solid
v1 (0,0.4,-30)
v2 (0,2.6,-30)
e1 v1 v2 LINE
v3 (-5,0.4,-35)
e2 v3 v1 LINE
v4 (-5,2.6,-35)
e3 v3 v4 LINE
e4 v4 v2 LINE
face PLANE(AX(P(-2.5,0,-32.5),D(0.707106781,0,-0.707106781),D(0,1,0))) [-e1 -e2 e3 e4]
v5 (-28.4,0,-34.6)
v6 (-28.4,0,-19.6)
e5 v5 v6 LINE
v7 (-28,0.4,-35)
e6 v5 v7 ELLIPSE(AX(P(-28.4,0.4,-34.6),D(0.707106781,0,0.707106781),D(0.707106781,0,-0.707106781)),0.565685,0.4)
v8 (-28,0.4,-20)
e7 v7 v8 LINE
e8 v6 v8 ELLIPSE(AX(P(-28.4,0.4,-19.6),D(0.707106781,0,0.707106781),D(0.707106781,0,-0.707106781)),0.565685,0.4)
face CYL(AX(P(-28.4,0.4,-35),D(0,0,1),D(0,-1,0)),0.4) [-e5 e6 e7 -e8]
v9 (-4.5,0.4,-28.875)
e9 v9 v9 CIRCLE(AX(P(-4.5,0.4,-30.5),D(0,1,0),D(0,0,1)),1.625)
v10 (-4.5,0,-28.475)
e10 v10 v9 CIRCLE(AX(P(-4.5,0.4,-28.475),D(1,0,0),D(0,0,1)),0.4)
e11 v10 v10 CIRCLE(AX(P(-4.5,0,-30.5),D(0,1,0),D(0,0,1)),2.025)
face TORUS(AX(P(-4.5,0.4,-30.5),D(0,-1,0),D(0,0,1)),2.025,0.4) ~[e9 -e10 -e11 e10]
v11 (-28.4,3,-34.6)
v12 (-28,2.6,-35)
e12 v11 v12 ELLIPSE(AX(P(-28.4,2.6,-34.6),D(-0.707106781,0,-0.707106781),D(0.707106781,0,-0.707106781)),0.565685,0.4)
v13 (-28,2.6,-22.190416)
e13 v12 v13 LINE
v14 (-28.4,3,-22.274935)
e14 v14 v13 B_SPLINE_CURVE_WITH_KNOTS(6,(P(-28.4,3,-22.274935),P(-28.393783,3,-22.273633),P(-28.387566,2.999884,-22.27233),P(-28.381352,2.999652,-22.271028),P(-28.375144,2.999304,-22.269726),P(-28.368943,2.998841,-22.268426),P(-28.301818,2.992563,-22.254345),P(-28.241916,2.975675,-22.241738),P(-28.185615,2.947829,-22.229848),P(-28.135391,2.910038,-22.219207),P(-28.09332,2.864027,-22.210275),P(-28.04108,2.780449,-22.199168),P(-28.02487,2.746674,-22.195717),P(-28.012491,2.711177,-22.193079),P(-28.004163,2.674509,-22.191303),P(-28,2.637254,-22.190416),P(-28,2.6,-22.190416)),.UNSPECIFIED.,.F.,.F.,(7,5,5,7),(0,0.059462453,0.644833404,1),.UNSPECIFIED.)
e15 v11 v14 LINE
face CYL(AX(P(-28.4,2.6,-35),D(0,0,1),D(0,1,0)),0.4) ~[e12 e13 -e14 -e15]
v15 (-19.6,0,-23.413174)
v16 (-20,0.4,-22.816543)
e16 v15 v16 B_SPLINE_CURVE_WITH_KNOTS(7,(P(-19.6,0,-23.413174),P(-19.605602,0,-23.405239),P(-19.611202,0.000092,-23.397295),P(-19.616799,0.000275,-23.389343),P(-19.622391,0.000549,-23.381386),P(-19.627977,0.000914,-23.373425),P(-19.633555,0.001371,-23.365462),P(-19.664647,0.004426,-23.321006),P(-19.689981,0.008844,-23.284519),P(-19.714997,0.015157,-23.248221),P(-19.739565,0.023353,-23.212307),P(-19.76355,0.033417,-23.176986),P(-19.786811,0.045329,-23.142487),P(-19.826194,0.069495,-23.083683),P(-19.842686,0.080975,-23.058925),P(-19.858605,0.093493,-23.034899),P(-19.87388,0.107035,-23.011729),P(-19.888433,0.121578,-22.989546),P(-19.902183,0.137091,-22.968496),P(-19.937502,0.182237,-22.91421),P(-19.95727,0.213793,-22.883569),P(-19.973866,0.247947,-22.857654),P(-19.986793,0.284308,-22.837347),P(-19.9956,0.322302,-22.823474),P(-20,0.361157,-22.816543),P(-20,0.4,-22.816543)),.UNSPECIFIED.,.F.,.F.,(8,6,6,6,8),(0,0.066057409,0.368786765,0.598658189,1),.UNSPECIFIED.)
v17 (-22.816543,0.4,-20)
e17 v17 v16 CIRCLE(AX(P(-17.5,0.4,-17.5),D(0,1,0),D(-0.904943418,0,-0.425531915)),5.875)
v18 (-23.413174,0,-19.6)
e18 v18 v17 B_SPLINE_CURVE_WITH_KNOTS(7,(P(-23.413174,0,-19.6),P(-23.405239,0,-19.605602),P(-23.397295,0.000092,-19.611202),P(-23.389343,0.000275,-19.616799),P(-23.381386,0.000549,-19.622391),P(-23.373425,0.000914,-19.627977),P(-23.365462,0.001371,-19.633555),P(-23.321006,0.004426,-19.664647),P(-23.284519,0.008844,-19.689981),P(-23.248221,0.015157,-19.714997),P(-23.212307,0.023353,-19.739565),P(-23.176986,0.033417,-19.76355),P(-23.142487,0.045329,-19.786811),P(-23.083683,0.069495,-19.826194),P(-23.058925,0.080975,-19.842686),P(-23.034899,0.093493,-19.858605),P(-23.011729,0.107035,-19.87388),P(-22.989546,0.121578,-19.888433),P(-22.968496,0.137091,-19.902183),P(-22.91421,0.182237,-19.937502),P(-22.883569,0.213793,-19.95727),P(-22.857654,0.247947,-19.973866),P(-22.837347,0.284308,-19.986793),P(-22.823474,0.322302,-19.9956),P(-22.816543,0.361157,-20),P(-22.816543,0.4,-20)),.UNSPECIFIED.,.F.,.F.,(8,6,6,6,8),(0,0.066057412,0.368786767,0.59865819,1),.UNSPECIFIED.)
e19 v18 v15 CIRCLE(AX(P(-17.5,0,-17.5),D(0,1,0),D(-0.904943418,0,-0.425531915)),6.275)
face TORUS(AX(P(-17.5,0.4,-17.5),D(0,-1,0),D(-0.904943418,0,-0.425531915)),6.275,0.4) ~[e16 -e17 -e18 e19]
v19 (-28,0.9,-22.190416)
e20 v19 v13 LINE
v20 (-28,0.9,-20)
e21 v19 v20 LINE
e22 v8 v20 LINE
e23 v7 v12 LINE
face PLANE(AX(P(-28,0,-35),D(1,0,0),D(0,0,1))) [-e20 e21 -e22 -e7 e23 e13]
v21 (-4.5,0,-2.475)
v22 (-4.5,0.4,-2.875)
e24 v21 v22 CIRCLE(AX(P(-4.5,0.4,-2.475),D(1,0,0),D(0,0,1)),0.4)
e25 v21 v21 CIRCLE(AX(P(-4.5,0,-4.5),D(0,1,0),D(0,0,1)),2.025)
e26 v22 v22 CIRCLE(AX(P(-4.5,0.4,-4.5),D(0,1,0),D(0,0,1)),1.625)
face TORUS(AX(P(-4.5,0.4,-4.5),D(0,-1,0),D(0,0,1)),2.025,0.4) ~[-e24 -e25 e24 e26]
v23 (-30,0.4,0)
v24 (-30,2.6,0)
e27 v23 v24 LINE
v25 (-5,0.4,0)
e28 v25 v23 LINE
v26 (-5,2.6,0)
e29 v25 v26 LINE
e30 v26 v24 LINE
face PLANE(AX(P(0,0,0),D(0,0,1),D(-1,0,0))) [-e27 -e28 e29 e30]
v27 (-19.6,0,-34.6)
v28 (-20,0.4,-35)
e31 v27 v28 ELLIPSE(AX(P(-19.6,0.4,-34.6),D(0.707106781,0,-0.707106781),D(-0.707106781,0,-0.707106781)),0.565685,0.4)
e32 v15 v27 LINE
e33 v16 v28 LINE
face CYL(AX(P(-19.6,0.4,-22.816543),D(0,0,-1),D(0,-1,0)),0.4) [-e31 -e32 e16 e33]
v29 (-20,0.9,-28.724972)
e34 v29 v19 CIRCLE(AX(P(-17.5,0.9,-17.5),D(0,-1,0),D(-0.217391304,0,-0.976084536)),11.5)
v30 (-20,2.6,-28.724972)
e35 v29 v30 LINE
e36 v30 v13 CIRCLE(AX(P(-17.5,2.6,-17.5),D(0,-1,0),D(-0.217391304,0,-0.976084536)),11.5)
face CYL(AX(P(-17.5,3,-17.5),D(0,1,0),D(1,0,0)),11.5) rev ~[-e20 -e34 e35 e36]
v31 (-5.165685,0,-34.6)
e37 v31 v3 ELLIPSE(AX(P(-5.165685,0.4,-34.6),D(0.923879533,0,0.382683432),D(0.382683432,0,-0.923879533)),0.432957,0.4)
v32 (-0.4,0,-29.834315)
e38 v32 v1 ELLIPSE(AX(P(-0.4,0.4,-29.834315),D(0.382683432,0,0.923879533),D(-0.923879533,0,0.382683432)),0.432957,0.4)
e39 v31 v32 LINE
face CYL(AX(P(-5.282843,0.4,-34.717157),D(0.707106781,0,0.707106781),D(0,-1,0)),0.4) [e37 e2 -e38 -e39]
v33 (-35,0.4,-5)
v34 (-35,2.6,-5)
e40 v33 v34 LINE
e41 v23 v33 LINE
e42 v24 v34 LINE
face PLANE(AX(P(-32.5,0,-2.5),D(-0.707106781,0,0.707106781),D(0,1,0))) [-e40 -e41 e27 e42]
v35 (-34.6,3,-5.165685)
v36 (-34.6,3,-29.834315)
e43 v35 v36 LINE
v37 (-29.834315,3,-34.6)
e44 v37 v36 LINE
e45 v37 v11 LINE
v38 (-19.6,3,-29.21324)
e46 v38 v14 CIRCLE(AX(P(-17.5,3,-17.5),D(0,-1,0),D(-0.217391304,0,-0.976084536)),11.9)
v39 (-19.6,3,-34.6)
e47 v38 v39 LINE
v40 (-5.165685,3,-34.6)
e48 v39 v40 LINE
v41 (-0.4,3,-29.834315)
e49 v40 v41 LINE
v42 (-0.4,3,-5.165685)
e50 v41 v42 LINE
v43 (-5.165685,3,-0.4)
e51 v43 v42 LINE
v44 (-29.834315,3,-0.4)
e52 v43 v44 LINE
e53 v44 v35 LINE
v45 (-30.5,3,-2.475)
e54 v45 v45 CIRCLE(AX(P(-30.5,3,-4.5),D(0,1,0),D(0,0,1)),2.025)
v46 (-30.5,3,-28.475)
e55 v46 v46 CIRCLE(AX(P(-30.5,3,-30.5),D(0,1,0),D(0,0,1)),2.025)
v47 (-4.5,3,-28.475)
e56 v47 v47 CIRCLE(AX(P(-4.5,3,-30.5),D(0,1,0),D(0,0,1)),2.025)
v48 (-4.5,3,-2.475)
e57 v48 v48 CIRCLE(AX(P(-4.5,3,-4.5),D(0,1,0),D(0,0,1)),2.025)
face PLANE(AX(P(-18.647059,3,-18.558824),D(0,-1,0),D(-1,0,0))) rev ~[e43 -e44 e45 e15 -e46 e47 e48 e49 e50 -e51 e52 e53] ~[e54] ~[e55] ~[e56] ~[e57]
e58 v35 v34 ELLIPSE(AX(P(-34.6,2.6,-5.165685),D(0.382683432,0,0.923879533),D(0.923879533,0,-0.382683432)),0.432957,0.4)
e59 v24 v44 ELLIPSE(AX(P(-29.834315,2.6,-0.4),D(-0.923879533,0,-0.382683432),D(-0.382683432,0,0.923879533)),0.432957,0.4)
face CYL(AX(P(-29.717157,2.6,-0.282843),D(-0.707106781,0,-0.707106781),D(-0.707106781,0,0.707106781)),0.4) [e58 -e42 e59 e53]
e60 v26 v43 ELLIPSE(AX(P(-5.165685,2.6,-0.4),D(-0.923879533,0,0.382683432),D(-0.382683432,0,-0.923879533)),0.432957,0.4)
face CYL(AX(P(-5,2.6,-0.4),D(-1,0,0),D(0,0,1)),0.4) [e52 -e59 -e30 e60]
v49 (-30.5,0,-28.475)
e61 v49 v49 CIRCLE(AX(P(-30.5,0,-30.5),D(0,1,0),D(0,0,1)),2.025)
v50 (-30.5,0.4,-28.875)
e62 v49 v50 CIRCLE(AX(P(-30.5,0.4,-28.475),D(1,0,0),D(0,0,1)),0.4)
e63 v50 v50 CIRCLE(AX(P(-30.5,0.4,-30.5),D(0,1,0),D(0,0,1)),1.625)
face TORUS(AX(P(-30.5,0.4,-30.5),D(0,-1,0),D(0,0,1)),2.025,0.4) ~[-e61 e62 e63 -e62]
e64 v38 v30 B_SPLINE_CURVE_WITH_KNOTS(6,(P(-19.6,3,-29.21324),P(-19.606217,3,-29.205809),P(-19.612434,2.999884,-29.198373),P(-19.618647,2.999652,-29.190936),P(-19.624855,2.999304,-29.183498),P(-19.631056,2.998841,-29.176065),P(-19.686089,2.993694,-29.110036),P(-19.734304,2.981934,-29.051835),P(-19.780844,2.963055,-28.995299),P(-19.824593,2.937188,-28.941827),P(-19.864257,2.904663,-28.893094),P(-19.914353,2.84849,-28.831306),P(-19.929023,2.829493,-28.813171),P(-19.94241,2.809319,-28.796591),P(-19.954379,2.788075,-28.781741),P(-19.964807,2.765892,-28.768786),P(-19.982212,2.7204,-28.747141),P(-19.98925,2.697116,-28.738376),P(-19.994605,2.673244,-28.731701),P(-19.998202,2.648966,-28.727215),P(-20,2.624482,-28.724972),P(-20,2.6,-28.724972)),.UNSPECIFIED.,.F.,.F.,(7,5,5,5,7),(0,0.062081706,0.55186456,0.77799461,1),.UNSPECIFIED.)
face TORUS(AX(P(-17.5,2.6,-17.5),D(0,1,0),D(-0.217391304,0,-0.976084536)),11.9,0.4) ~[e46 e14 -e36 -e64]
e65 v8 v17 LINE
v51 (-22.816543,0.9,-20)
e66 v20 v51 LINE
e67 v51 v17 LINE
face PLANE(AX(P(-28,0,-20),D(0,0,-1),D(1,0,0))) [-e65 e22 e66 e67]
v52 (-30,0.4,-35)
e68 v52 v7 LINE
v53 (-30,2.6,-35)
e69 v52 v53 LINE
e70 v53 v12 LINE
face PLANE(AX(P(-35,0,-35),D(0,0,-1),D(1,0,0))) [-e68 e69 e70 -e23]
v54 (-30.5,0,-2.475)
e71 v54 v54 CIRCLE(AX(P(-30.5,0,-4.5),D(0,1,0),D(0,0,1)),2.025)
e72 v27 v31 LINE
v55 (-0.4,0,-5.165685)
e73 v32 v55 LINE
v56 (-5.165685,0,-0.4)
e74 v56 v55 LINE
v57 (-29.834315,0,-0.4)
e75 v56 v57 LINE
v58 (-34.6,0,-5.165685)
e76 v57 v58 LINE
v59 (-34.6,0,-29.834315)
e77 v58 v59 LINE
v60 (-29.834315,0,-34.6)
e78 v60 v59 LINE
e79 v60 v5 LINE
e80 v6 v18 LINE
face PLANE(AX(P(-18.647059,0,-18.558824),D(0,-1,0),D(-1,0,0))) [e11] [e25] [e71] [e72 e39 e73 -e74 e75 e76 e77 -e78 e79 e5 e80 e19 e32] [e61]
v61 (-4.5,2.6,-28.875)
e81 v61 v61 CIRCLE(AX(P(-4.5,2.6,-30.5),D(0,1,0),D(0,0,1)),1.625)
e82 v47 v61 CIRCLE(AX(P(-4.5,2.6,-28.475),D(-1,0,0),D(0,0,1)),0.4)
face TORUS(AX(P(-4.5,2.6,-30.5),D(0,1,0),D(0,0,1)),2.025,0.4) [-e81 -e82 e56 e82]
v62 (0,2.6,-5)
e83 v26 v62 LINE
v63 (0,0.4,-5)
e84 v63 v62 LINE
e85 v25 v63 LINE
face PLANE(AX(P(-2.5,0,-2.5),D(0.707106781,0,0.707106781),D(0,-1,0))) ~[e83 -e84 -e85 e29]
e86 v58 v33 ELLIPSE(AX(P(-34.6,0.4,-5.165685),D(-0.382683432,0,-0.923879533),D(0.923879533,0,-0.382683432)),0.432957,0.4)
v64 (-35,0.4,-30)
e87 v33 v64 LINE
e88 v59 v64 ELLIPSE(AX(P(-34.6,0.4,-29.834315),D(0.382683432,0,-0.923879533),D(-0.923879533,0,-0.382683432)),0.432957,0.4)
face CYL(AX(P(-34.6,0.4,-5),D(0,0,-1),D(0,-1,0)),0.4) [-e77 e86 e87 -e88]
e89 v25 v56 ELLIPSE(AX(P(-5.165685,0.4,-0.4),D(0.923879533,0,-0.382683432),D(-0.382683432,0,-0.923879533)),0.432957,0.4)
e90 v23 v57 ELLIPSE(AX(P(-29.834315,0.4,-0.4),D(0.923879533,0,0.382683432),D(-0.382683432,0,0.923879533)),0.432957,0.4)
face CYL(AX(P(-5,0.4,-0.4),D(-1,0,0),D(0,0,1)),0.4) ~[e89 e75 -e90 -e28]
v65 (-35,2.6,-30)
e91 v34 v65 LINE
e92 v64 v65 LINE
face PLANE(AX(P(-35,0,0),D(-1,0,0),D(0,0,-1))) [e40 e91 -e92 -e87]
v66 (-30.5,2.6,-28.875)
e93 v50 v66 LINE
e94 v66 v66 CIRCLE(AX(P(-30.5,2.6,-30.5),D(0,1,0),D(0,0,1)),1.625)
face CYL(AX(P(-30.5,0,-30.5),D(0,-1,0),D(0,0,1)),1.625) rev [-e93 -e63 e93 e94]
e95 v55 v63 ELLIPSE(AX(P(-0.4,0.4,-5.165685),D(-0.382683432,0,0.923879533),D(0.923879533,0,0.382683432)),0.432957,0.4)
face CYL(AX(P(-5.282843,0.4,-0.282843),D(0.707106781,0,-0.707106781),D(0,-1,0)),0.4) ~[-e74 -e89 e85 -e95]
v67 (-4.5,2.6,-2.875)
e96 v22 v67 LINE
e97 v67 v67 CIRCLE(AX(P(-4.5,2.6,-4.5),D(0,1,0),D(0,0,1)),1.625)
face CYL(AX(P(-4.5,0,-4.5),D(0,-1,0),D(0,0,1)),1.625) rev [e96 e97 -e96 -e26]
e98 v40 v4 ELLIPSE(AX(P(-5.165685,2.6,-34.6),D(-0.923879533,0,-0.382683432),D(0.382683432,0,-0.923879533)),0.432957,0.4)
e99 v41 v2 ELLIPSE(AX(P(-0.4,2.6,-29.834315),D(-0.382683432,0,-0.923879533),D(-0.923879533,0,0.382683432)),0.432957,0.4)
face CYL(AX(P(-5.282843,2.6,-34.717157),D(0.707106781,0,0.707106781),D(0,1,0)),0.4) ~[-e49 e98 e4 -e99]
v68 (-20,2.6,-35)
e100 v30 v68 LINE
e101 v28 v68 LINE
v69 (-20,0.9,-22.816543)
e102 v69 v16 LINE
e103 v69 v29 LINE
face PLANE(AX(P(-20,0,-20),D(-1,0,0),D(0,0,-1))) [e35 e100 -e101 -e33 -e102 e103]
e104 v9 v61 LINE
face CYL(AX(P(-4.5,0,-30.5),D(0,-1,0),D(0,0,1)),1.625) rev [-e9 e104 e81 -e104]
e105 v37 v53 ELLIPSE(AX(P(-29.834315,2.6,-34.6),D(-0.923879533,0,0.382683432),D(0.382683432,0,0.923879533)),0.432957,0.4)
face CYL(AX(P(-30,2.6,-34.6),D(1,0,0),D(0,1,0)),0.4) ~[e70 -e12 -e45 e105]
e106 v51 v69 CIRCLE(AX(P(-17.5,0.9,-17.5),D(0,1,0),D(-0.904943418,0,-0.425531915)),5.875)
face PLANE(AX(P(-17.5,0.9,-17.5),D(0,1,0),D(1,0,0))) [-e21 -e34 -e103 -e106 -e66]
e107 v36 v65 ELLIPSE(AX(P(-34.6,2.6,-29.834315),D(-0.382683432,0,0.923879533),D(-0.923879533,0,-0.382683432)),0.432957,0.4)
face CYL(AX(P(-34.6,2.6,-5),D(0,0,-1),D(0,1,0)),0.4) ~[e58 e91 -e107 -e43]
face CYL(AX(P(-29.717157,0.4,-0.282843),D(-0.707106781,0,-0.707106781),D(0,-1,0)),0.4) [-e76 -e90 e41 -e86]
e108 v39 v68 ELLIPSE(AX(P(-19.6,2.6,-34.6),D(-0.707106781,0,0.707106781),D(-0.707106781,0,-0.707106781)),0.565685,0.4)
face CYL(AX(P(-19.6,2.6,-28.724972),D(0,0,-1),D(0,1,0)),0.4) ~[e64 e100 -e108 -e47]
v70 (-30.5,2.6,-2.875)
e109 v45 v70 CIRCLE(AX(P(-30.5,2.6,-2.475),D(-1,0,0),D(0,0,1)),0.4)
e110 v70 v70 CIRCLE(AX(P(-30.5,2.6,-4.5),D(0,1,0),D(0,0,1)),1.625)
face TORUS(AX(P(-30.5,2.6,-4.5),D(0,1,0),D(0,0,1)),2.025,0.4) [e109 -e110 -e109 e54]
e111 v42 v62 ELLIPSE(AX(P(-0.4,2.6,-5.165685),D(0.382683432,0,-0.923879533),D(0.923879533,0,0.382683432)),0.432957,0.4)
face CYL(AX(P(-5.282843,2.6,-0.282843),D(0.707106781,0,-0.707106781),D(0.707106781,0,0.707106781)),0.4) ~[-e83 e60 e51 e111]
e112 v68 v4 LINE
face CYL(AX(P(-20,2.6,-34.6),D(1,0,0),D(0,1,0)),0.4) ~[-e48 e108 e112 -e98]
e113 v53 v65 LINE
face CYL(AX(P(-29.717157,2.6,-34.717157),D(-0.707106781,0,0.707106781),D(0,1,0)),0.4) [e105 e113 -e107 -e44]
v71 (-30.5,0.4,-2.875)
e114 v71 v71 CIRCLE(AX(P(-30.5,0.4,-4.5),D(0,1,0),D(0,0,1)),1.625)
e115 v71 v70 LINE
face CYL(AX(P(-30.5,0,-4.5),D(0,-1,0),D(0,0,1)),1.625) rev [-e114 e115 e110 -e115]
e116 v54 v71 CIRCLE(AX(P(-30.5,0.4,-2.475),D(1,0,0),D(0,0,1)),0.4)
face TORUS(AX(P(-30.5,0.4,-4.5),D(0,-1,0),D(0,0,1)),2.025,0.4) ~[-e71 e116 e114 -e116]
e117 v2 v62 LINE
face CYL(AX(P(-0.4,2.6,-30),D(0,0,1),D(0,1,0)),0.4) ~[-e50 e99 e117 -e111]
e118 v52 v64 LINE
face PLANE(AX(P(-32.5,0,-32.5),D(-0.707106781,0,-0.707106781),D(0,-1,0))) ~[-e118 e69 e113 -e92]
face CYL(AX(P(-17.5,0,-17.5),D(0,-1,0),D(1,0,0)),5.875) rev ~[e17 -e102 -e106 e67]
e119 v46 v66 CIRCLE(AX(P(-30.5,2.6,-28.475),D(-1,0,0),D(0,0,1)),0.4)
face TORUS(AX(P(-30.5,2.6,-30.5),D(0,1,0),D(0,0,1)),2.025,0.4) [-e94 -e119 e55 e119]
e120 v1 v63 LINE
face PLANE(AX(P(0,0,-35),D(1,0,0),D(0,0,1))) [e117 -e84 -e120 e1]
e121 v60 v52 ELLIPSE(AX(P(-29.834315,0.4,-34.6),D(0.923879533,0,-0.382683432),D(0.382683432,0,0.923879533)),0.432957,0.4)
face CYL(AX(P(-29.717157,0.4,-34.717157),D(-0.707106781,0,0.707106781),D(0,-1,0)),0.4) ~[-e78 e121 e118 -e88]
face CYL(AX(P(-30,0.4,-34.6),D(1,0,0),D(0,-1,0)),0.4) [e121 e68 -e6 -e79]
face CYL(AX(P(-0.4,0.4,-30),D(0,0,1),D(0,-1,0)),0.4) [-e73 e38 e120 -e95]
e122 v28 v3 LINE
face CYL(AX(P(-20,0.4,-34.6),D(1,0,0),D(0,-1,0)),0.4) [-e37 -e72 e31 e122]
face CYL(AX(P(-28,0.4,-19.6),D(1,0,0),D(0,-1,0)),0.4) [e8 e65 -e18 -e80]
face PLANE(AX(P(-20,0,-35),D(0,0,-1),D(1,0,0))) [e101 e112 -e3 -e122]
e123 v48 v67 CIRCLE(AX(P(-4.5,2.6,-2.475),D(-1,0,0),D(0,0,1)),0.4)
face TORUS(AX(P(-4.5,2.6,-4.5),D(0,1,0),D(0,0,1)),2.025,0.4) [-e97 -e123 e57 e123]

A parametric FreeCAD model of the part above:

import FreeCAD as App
import Part
import Sketcher


def edges_at(feature, points):
    """Names of the edges that pass closest to the given points."""
    edges = feature.Shape.Edges
    near = lambda p: min(range(len(edges)), key=lambda i: edges[i].distToShape(Part.Vertex(*p))[0])
    return sorted({f"Edge{near(p) + 1}" for p in points})

doc = App.newDocument("Part")
params = doc.addObject("Spreadsheet::Sheet", "Params")
for row, (alias, value) in enumerate([
    ("sketch1_diameter", "3.25 mm"),
    ("sketch1_width", "35 mm"),
    ("sketch1_width2", "20 mm"),
    ("sketch1_width3", "8 mm"),
    ("sketch1_height", "15 mm"),
    ("pad1_length", "3 mm"),
    ("sketch2_diameter", "23 mm"),
    ("pocket1_length", "2.1 mm"),
    ("sketch3_diameter", "11.75 mm"),
    ("chamfer_size", "5 mm"),
    ("fillet_radius", "0.4 mm"),
], start=1):
    params.set(f"A{row}", alias)
    params.set(f"B{row}", "=" + value)
    params.setAlias(f"B{row}", alias)

body = doc.addObject("PartDesign::Body", "Body")

sketch1 = body.newObject("Sketcher::SketchObject", "Sketch")
sketch1.AttachmentSupport = (doc.getObject("XZ_Plane"), [""])
sketch1.MapMode = "FlatFace"
sketch1.addGeometry([
    Part.LineSegment(App.Vector(-35, 0, 0), App.Vector(0, 0, 0)),
    Part.LineSegment(App.Vector(0, 0, 0), App.Vector(0, -35, 0)),
    Part.LineSegment(App.Vector(0, -35, 0), App.Vector(-20, -35, 0)),
    Part.LineSegment(App.Vector(-20, -35, 0), App.Vector(-20, -20, 0)),
    Part.LineSegment(App.Vector(-20, -20, 0), App.Vector(-28, -20, 0)),
    Part.LineSegment(App.Vector(-28, -20, 0), App.Vector(-28, -35, 0)),
    Part.LineSegment(App.Vector(-28, -35, 0), App.Vector(-35, -35, 0)),
    Part.LineSegment(App.Vector(-35, -35, 0), App.Vector(-35, 0, 0)),
    Part.Circle(App.Vector(-4.5, -4.5, 0), App.Vector(0, 0, 1), 1.6),
    Part.Circle(App.Vector(-30.5, -4.5, 0), App.Vector(0, 0, 1), 1.6),
    Part.Circle(App.Vector(-4.5, -30.5, 0), App.Vector(0, 0, 1), 1.6),
    Part.Circle(App.Vector(-30.5, -30.5, 0), App.Vector(0, 0, 1), 1.6),
], False)
sketch1.addConstraint([
    Sketcher.Constraint("Coincident", 0, 2, 1, 1),
    Sketcher.Constraint("Coincident", 1, 2, 2, 1),
    Sketcher.Constraint("Coincident", 2, 2, 3, 1),
    Sketcher.Constraint("Coincident", 3, 2, 4, 1),
    Sketcher.Constraint("Coincident", 4, 2, 5, 1),
    Sketcher.Constraint("Coincident", 5, 2, 6, 1),
    Sketcher.Constraint("Coincident", 6, 2, 7, 1),
    Sketcher.Constraint("Coincident", 7, 2, 0, 1),
    Sketcher.Constraint("Horizontal", 0),
    Sketcher.Constraint("Vertical", 1),
    Sketcher.Constraint("Horizontal", 2),
    Sketcher.Constraint("Vertical", 3),
    Sketcher.Constraint("Horizontal", 4),
    Sketcher.Constraint("Vertical", 5),
    Sketcher.Constraint("Horizontal", 6),
    Sketcher.Constraint("Vertical", 7),
    Sketcher.Constraint("Coincident", 0, 2, -1, 1),
    Sketcher.Constraint("Equal", 8, 9),
    Sketcher.Constraint("Equal", 9, 10),
    Sketcher.Constraint("Equal", 10, 11),
    Sketcher.Constraint("Horizontal", 8, 3, 9, 3),
    Sketcher.Constraint("Horizontal", 10, 3, 11, 3),
    Sketcher.Constraint("Horizontal", 2, 2, 5, 2),
    Sketcher.Constraint("Vertical", 8, 3, 10, 3),
    Sketcher.Constraint("Vertical", 9, 3, 11, 3),
    Sketcher.Constraint("Equal", 0, 1),
    Sketcher.Constraint("Diameter", 8, 3.25),
    Sketcher.Constraint("DistanceX", 0, 1, 0, 2, 35.0),
    Sketcher.Constraint("DistanceX", 2, 2, 2, 1, 20.0),
    Sketcher.Constraint("DistanceX", 4, 2, 4, 1, 8.0),
    Sketcher.Constraint("DistanceY", 3, 1, 3, 2, 15.0),
    Sketcher.Constraint("DistanceX", 9, 3, 8, 3, 26.0),
    Sketcher.Constraint("DistanceY", 10, 3, 8, 3, 26.0),
    Sketcher.Constraint("DistanceX", 8, 3, -1, 1, 4.5),
    Sketcher.Constraint("DistanceY", 8, 3, -1, 1, 4.5),
])
sketch1.setExpression("Constraints[26]", "Params.sketch1_diameter")
sketch1.setExpression("Constraints[27]", "Params.sketch1_width")
sketch1.setExpression("Constraints[28]", "Params.sketch1_width2")
sketch1.setExpression("Constraints[29]", "Params.sketch1_width3")
sketch1.setExpression("Constraints[30]", "Params.sketch1_height")
pad1 = body.newObject("PartDesign::Pad", "Pad")
pad1.Profile = sketch1
pad1.setExpression("Length", "Params.pad1_length")
pad1.Reversed = True

sketch2 = body.newObject("Sketcher::SketchObject", "Sketch001")
sketch2.AttachmentSupport = (doc.getObject("XZ_Plane"), [""])
sketch2.MapMode = "FlatFace"
sketch2.AttachmentOffset = App.Placement(App.Vector(0, 0, -3), App.Rotation())
sketch2.addGeometry(Part.Circle(App.Vector(-18, -18, 0), App.Vector(0, 0, 1), 12), False)
sketch2.addConstraint([
    Sketcher.Constraint("Diameter", 0, 23.0),
    Sketcher.Constraint("DistanceX", 0, 3, -1, 1, 17.5),
    Sketcher.Constraint("DistanceY", 0, 3, -1, 1, 17.5),
])
sketch2.setExpression("Constraints[0]", "Params.sketch2_diameter")
pocket1 = body.newObject("PartDesign::Pocket", "Pocket")
pocket1.Profile = sketch2
pocket1.setExpression("Length", "Params.pocket1_length")
pocket1.Reversed = True

sketch3 = body.newObject("Sketcher::SketchObject", "Sketch002")
sketch3.AttachmentSupport = (doc.getObject("XZ_Plane"), [""])
sketch3.MapMode = "FlatFace"
sketch3.addGeometry(Part.Circle(App.Vector(-18, -18, 0), App.Vector(0, 0, 1), 6), False)
sketch3.addConstraint([
    Sketcher.Constraint("Diameter", 0, 11.75),
    Sketcher.Constraint("DistanceX", 0, 3, -1, 1, 17.5),
    Sketcher.Constraint("DistanceY", 0, 3, -1, 1, 17.5),
])
sketch3.setExpression("Constraints[0]", "Params.sketch3_diameter")
pocket2 = body.newObject("PartDesign::Pocket", "Pocket001")
pocket2.Profile = sketch3
pocket2.Type = "ThroughAll"
doc.recompute()

chamfer = body.newObject("PartDesign::Chamfer", "Chamfer")
chamfer.Base = (pocket2, edges_at(pocket2, [
    (0, 1.5, 0),
    (-35, 1.5, 0),
    (-35, 1.5, -35),
    (0, 1.5, -35),
]))
chamfer.setExpression("Size", "Params.chamfer_size")
doc.recompute()

fillet = body.newObject("PartDesign::Fillet", "Fillet")
fillet.Base = (chamfer, edges_at(chamfer, [
    (-20, 0, -28.908),
    (-20, 3, -31.862),
    (-30.5, 0, -32.125),
    (-30.5, 3, -32.125),
    (-29, 3, -35),
    (-4.5, 0, -32.125),
    (-4.5, 3, -32.125),
    (-4.5, 0, -6.125),
    (-4.5, 3, -6.125),
    (-30.5, 0, -6.125),
    (-30.5, 3, -6.125),
    (-28, 3, -28.595),
    (-10.225, 3, -8.594),
    (-25.408, 0, -20),
    (-13.346, 0, -13.346),
    (-35, 0, -17.5),
    (-35, 3, -17.5),
    (-12.5, 0, -35),
    (0, 0, -17.5),
    (-17.5, 0, 0),
    (-2.5, 0, -32.5),
    (-32.5, 0, -2.5),
    (-2.5, 0, -2.5),
    (-32.5, 0, -32.5),
    (-17.5, 3, 0),
    (0, 3, -17.5),
    (-12.5, 3, -35),
    (-2.5, 3, -32.5),
    (-32.5, 3, -2.5),
    (-2.5, 3, -2.5),
    (-32.5, 3, -32.5),
    (-29, 0, -35),
    (-28, 0, -27.5),
]))
fillet.setExpression("Radius", "Params.fillet_radius")

doc.recompute()
